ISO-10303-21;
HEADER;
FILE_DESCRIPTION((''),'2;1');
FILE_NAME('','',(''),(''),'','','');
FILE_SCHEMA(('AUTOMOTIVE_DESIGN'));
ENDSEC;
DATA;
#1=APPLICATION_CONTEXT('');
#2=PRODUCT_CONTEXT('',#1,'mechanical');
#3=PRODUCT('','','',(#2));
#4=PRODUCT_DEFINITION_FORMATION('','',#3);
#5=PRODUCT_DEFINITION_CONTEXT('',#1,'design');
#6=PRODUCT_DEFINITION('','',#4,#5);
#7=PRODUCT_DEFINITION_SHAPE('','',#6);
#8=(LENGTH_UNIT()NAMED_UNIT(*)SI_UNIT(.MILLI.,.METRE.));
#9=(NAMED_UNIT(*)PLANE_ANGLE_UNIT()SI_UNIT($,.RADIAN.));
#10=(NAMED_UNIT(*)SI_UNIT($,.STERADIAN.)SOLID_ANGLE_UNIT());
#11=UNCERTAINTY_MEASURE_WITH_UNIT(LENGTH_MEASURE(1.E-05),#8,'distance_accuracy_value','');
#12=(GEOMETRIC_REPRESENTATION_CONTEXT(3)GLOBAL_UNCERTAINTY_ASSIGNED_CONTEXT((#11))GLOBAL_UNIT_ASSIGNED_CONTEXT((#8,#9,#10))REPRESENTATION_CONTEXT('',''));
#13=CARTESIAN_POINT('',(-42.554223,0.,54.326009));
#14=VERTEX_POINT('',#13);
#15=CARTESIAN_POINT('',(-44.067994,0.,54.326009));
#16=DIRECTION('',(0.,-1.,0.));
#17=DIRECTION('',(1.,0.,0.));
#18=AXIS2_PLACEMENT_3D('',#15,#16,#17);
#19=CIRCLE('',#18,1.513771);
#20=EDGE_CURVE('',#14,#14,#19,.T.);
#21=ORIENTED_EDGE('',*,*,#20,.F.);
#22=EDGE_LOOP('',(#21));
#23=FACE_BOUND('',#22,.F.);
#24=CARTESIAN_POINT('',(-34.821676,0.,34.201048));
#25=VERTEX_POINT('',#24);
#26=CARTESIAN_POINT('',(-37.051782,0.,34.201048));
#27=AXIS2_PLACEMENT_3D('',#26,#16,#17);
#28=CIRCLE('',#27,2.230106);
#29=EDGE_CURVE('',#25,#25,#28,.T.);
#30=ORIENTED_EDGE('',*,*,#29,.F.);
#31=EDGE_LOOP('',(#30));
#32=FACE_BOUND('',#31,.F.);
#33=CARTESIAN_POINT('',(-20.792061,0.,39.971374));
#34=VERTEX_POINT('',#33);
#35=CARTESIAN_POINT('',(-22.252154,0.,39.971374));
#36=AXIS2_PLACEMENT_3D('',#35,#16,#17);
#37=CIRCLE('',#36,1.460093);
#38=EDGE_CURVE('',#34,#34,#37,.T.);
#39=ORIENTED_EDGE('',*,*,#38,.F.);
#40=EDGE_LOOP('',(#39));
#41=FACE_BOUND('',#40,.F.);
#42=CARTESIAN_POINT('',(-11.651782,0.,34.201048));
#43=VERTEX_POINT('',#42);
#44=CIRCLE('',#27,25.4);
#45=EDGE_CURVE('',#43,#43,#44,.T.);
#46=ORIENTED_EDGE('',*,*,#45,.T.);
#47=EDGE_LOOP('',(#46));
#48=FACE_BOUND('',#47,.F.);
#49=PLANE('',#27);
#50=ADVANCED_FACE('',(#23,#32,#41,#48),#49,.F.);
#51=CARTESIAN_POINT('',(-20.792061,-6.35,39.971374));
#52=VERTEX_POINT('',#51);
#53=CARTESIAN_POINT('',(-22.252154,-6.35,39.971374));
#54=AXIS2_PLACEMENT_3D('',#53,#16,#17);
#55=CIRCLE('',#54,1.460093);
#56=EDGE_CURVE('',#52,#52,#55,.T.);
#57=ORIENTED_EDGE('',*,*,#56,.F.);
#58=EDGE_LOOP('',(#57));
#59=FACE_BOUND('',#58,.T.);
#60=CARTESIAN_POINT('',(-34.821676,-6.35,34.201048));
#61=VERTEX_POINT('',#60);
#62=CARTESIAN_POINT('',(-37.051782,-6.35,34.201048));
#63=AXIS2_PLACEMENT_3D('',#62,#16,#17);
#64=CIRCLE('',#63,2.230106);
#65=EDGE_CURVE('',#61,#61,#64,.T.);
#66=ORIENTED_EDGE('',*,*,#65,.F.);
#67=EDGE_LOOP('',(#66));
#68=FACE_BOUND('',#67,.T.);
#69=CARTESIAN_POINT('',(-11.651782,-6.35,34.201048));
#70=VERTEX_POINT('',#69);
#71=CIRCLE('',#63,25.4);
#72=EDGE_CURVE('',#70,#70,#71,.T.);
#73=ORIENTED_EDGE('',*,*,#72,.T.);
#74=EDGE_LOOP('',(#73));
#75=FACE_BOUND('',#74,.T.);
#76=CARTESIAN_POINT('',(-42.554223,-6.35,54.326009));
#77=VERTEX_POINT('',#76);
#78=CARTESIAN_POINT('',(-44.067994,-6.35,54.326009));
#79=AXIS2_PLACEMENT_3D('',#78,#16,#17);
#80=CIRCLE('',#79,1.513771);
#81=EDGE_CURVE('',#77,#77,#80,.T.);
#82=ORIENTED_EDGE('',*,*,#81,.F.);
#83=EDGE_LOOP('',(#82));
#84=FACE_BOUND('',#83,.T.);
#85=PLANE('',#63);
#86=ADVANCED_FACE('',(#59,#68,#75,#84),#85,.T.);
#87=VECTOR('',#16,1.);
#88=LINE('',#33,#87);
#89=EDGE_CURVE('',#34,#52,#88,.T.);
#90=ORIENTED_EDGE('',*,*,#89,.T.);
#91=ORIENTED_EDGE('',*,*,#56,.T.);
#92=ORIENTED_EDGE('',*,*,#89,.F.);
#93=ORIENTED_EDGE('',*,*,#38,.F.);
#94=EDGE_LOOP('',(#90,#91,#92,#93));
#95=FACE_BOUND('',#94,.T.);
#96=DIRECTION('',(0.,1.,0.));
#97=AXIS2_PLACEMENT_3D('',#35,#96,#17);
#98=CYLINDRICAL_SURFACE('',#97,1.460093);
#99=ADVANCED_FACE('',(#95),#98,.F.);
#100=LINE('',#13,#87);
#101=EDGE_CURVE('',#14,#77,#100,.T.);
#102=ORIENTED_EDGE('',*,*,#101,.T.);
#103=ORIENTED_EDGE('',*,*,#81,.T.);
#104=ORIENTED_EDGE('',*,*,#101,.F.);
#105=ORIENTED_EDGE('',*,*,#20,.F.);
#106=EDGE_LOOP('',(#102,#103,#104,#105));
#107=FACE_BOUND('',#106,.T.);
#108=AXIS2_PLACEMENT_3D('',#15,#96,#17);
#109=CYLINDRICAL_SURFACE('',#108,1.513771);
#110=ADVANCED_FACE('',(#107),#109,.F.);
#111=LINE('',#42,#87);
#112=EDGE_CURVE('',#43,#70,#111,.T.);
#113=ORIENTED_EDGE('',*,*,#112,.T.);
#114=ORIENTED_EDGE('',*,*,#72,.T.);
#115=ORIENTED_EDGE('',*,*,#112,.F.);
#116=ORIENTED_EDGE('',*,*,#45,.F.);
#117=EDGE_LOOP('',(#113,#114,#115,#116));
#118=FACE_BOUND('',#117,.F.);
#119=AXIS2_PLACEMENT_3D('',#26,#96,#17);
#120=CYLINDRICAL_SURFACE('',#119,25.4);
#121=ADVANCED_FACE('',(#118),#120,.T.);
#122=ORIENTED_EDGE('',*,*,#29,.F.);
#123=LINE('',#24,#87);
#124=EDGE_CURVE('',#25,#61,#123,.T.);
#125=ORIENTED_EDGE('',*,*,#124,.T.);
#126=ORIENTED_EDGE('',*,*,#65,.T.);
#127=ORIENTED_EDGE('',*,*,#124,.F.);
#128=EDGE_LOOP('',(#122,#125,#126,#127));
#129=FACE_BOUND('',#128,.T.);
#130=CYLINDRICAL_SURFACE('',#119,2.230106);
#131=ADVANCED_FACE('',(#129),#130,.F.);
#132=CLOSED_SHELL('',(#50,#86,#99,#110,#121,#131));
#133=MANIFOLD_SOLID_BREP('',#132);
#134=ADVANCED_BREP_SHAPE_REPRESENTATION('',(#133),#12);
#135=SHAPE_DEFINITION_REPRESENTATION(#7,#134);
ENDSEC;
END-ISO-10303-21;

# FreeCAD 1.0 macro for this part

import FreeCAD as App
import Part
import Sketcher

V = App.Vector
Q = App.Units.Quantity

doc = App.newDocument("Part")
body = doc.addObject("PartDesign::Body", "Body")

# Sketch on XZ plane
sketch1 = body.newObject("Sketcher::SketchObject", "Sketch")
sketch1.AttachmentSupport = (doc.getObject("XZ_Plane"), [""])
sketch1.MapMode = "FlatFace"
sketch1.addGeometry([
    Part.Circle(V(-37.051782, 34.201048, 0), V(0, 0, 1), 25.4),
    Part.Circle(V(-37.051782, 34.201048, 0), V(0, 0, 1), 2.230106),
    Part.Circle(V(-22.252154, 39.971374, 0), V(0, 0, 1), 1.460093),
    Part.Circle(V(-44.067994, 54.326009, 0), V(0, 0, 1), 1.513771),
], False)
sketch1.addConstraint([
    Sketcher.Constraint("Coincident", 1, 3, 0, 3),
    Sketcher.Constraint("Diameter", 0, Q("2 in")),
    Sketcher.Constraint("Diameter", 3, Q("3.027542 mm")),
    Sketcher.Constraint("Diameter", 1, Q("4.460212 mm")),
    Sketcher.Constraint("Diameter", 2, Q("2.920186 mm")),
    Sketcher.Constraint("DistanceY", -1, 1, 3, 3, Q("54.326009 mm")),
    Sketcher.Constraint("DistanceX", 0, 3, 2, 3, Q("14.799628 mm")),
    Sketcher.Constraint("DistanceX", 3, 3, 0, 3, Q("7.016212 mm")),
    Sketcher.Constraint("DistanceY", 0, 3, 3, 3, Q("20.124961 mm")),
    Sketcher.Constraint("DistanceX", 0, 3, -1, 1, Q("37.051782 mm")),
    Sketcher.Constraint("DistanceY", -1, 1, 2, 3, Q("39.971374 mm")),
])
pad1 = body.newObject("PartDesign::Pad", "Pad")
pad1.Profile = sketch1
pad1.Length = Q("0.25 in")

doc.recompute()
